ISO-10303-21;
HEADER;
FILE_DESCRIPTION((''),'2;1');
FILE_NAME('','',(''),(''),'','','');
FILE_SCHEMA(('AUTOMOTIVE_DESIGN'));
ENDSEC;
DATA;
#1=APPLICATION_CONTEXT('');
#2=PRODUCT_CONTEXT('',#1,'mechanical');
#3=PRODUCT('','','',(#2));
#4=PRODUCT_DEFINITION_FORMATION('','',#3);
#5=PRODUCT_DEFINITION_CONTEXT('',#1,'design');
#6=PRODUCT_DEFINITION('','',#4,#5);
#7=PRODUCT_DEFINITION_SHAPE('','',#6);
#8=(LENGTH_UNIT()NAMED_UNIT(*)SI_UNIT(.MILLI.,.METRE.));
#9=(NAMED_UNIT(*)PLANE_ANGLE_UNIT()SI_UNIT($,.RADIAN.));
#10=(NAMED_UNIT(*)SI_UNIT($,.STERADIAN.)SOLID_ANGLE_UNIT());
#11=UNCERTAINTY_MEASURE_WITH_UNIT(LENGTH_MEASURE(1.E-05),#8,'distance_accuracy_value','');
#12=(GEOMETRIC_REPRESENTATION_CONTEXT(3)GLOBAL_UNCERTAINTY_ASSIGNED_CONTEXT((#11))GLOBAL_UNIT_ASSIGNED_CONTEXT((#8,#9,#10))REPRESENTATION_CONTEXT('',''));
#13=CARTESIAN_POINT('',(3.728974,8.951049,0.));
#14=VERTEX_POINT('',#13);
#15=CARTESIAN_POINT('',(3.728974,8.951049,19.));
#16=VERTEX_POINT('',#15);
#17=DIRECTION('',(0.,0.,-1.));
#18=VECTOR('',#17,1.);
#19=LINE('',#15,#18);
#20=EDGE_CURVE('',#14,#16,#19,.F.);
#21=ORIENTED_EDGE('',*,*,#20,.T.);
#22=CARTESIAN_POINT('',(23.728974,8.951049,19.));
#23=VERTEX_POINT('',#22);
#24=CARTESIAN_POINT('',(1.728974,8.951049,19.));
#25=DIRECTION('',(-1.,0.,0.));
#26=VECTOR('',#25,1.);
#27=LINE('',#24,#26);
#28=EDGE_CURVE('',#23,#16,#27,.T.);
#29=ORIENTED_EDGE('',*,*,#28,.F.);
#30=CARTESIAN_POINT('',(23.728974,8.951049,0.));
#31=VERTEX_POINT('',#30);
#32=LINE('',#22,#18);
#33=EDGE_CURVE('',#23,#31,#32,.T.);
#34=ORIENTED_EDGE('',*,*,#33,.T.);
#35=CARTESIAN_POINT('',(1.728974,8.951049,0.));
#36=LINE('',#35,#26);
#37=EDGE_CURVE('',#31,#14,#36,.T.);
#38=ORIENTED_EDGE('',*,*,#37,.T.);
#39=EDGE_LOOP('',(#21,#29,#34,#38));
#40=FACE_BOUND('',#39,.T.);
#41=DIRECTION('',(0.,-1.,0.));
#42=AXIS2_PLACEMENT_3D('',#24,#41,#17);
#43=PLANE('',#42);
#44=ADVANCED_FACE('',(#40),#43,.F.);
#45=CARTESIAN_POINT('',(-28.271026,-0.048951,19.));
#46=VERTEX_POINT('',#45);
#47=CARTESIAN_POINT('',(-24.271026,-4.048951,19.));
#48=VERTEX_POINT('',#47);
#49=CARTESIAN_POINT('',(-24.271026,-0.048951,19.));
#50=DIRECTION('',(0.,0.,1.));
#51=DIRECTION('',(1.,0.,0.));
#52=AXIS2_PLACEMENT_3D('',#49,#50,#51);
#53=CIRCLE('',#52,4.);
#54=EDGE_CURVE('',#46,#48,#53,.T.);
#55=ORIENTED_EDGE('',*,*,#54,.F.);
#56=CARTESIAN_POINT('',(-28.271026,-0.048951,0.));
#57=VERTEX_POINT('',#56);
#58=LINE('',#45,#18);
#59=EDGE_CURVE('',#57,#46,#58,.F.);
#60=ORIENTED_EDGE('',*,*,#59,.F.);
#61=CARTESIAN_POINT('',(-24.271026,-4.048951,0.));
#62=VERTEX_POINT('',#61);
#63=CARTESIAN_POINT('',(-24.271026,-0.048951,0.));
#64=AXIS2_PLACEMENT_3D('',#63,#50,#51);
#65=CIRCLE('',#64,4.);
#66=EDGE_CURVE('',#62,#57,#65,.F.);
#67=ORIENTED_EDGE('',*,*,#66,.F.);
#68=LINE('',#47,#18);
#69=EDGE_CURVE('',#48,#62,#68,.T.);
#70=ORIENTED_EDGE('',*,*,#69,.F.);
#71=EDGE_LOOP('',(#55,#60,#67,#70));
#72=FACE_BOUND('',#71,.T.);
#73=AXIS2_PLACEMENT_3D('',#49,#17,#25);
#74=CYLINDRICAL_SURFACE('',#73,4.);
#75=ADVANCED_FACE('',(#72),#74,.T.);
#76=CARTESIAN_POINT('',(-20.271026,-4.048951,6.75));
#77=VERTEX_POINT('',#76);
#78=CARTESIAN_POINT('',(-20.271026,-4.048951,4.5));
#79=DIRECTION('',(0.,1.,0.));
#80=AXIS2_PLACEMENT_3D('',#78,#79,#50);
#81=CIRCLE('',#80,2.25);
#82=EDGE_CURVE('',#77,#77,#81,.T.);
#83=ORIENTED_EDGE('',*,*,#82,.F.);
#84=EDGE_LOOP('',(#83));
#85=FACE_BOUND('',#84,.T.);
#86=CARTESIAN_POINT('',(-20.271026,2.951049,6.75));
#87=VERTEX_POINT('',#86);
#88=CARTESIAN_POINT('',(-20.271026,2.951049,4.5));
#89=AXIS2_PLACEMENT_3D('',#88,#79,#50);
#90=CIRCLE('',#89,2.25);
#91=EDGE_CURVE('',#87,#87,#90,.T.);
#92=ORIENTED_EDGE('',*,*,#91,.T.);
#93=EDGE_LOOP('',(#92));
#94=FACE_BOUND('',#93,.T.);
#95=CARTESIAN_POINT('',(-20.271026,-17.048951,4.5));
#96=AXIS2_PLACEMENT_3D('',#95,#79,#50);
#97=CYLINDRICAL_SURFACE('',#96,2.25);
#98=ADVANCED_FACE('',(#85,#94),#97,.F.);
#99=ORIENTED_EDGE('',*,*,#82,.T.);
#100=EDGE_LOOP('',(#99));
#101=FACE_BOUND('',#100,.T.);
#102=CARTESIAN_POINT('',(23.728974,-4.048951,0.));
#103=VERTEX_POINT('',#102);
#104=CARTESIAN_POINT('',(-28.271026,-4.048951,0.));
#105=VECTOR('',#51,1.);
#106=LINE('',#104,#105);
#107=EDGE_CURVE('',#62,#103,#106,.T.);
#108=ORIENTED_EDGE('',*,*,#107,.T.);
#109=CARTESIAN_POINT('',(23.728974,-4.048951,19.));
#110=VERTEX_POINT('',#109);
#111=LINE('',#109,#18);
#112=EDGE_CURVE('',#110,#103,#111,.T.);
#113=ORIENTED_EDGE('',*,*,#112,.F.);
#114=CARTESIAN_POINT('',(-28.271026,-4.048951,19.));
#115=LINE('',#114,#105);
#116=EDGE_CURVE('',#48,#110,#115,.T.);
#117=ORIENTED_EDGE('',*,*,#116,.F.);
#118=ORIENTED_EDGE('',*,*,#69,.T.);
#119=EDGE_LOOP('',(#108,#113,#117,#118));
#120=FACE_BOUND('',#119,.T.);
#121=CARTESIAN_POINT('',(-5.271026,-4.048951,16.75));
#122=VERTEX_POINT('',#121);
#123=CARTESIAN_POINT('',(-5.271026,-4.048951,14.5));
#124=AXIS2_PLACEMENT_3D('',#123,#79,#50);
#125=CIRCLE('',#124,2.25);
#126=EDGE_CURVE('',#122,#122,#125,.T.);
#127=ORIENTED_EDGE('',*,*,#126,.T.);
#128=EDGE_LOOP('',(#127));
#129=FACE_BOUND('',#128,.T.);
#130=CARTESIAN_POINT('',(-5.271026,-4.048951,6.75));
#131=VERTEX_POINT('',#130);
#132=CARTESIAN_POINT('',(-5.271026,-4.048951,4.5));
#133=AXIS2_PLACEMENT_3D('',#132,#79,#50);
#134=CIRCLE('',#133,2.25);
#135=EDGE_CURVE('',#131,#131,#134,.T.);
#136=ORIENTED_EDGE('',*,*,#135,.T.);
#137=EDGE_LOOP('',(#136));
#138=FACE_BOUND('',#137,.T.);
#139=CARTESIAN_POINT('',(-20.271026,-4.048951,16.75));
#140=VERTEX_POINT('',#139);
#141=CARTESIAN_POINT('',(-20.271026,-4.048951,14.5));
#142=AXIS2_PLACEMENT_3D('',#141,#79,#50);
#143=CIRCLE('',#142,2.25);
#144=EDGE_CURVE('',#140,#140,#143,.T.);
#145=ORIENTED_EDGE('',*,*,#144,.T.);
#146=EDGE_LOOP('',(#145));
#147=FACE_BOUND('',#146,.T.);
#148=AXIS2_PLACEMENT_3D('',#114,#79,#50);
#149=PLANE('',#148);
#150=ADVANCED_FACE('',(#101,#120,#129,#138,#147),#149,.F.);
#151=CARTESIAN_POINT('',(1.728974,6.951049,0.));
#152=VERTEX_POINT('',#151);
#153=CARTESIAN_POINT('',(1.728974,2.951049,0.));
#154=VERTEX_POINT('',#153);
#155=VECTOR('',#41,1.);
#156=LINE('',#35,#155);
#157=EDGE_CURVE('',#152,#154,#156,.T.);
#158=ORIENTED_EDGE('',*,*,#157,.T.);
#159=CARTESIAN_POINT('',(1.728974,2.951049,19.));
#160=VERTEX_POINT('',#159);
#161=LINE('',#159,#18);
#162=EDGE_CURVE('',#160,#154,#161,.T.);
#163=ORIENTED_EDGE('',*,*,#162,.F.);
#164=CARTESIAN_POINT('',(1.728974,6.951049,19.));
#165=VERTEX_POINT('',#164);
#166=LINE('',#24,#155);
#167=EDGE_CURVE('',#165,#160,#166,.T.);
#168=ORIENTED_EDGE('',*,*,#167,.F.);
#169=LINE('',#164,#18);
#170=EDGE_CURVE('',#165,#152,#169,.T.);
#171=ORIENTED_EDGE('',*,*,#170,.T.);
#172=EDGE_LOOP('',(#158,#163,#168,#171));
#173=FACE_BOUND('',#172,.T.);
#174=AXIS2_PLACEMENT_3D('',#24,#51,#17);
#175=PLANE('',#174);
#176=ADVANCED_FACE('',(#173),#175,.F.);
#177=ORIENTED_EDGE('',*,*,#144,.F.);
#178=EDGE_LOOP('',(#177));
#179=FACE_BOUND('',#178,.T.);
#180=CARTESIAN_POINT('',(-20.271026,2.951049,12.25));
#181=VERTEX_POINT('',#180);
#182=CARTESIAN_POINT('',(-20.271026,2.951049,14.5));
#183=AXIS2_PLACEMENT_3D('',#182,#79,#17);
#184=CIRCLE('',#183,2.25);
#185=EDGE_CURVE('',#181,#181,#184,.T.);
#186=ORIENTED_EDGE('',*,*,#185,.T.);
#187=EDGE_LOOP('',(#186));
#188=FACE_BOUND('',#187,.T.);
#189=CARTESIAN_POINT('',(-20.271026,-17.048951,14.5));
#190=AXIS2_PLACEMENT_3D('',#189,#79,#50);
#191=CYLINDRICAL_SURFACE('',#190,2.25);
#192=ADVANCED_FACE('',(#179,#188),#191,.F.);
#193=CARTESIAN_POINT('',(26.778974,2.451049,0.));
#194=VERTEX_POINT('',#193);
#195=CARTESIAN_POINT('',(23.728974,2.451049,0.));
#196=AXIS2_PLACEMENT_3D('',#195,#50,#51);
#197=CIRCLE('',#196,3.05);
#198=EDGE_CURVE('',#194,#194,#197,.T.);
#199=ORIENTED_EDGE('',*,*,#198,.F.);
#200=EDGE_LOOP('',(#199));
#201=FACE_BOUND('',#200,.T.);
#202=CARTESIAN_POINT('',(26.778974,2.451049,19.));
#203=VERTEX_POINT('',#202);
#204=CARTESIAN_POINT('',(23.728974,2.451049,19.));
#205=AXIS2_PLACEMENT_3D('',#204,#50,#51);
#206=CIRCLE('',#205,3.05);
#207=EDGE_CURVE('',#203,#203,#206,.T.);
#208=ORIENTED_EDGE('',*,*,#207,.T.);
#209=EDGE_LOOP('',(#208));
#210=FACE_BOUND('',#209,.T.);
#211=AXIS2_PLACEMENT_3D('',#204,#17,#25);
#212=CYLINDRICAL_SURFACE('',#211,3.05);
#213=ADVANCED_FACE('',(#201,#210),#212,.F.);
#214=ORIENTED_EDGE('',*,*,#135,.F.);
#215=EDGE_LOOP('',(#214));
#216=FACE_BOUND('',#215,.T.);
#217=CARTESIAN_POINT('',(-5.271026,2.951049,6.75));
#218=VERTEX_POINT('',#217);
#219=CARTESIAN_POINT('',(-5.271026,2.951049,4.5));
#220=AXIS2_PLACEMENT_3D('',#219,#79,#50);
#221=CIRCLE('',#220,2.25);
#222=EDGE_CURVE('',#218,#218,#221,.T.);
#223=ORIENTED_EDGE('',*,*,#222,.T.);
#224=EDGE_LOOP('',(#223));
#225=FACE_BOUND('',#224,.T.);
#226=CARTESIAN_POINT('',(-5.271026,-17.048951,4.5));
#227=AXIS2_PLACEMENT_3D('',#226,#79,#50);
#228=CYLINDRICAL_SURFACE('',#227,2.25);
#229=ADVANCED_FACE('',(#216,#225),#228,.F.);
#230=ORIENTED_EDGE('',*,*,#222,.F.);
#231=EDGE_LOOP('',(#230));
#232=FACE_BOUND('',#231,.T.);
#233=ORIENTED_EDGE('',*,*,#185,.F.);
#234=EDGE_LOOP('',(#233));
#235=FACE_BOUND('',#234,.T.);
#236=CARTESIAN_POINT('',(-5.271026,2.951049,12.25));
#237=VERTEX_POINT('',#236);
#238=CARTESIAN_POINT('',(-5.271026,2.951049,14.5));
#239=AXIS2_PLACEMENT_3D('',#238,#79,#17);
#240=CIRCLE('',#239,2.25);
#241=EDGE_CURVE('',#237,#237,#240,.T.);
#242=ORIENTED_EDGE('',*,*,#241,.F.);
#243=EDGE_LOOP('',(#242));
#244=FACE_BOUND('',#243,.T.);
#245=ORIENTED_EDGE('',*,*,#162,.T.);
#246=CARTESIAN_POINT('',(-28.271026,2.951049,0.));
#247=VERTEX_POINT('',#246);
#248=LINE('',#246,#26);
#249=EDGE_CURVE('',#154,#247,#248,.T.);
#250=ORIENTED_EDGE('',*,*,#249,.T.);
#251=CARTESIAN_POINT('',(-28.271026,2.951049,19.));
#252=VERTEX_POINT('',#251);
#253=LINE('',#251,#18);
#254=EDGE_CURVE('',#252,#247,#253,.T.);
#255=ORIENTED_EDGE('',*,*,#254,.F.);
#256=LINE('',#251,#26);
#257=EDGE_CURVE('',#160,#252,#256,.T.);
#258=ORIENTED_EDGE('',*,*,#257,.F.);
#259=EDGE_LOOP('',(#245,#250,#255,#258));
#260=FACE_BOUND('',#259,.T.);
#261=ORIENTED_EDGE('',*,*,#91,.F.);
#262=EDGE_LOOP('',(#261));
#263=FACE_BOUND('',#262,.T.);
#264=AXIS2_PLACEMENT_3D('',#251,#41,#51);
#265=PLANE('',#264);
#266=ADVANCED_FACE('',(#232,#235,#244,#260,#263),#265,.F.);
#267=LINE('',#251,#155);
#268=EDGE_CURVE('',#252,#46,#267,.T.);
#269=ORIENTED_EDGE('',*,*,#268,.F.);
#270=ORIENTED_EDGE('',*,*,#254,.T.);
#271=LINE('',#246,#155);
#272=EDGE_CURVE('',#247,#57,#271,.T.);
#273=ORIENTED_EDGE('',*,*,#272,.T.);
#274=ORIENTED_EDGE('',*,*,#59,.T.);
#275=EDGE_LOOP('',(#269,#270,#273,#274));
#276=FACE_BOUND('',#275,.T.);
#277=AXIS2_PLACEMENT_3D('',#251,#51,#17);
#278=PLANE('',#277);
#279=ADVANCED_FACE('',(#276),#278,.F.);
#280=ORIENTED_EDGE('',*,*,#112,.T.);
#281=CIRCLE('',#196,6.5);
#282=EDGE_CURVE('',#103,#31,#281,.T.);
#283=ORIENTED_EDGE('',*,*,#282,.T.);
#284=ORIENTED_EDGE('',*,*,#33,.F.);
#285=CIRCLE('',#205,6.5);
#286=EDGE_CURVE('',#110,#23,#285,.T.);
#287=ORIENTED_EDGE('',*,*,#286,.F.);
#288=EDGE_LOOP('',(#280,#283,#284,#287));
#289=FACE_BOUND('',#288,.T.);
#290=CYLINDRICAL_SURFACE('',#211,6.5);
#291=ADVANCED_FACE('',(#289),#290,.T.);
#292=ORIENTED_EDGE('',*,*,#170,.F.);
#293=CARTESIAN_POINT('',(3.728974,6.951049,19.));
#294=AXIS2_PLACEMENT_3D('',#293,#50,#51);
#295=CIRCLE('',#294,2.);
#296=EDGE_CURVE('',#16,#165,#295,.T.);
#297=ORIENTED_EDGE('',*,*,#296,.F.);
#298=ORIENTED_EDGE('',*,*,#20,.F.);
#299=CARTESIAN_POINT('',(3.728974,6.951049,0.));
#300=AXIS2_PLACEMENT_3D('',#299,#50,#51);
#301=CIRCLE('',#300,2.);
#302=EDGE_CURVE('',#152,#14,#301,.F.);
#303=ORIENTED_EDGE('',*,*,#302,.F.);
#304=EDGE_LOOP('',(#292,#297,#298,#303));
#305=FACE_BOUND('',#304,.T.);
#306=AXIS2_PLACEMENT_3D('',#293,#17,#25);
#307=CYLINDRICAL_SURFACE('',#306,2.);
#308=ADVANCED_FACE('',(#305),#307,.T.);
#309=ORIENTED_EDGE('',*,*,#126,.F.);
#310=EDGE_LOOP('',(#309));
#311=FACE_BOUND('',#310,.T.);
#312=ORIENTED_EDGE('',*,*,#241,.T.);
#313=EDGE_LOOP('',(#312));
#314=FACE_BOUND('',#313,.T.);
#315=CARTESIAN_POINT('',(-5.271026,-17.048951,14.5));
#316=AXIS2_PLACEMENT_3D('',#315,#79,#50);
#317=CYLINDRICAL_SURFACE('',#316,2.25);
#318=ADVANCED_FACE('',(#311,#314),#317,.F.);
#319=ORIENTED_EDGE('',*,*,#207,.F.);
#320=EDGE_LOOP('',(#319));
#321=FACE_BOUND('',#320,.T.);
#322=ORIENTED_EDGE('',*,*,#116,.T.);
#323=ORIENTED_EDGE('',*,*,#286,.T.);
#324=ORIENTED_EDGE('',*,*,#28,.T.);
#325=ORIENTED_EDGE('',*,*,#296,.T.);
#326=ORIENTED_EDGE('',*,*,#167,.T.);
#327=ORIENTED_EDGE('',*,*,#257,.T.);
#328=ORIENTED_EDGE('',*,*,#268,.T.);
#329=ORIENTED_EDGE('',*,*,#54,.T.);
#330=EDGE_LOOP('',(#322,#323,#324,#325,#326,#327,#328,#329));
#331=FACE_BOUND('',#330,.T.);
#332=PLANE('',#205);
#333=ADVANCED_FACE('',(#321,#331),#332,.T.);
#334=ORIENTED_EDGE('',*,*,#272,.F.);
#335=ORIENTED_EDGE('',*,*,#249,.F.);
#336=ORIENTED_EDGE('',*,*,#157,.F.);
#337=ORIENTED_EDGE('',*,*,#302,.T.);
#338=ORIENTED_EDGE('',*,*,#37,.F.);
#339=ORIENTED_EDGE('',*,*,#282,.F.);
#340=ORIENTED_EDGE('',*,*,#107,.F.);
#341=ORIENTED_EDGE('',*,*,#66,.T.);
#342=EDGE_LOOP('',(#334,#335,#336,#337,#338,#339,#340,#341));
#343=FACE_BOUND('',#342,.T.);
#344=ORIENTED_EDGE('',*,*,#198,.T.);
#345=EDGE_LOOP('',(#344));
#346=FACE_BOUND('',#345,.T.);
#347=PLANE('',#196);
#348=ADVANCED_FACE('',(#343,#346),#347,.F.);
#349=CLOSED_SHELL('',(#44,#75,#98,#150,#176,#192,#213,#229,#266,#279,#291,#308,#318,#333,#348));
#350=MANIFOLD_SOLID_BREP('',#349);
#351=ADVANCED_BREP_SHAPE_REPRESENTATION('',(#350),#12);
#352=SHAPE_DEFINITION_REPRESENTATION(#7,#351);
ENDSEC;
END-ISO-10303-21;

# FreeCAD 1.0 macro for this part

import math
import FreeCAD as App
import Part
import Sketcher
Q = App.Units.Quantity


def edges_at(feature, points):
    """Names of the edges that pass closest to the given points."""
    edges = feature.Shape.Edges
    near = lambda p: min(range(len(edges)), key=lambda i: edges[i].distToShape(Part.Vertex(*p))[0])
    return sorted({f"Edge{near(p) + 1}" for p in points})

doc = App.newDocument("Part")
body = doc.addObject("PartDesign::Body", "Body")

# Sketch on XY plane
sketch1 = doc.addObject("Sketcher::SketchObject", "Sketch")
body.addObject(sketch1)
sketch1.AttachmentSupport = (doc.XY_Plane, [""])
sketch1.MapMode = "FlatFace"
sketch1.addGeometry([
    Part.LineSegment(App.Vector(23.7, 9, 0), App.Vector(1.7, 9, 0)),  # 0
    Part.LineSegment(App.Vector(1.7, 9, 0), App.Vector(1.7, 3, 0)),  # 1
    Part.LineSegment(App.Vector(1.7, 3, 0), App.Vector(-28.3, 3, 0)),  # 2
    Part.LineSegment(App.Vector(-28.3, 3, 0), App.Vector(-28.3, -4, 0)),  # 3
    Part.LineSegment(App.Vector(-28.3, -4, 0), App.Vector(23.7, -4, 0)),  # 4
    Part.ArcOfCircle(Part.Circle(App.Vector(23.7, 2.5, 0), App.Vector(0, 0, 1), 6.5), math.radians(-90), math.radians(90)),  # 5
    Part.Circle(App.Vector(23.7, 2.5, 0), App.Vector(0, 0, 1), 3),  # 6
], False)
sketch1.addConstraint([
    Sketcher.Constraint("Coincident", 0, 2, 1, 1),
    Sketcher.Constraint("Coincident", 1, 2, 2, 1),
    Sketcher.Constraint("Coincident", 2, 2, 3, 1),
    Sketcher.Constraint("Coincident", 3, 2, 4, 1),
    Sketcher.Constraint("Tangent", 4, 2, 5, 1),
    Sketcher.Constraint("Tangent", 5, 2, 0, 1),
    Sketcher.Constraint("Horizontal", 0),
    Sketcher.Constraint("Vertical", 1),
    Sketcher.Constraint("Horizontal", 2),
    Sketcher.Constraint("Vertical", 3),
    Sketcher.Constraint("Horizontal", 4),
    Sketcher.Constraint("Coincident", 6, 3, 5, 3),
    Sketcher.Constraint("Diameter", 6, Q("6.1 mm")),
    Sketcher.Constraint("Radius", 5, Q("6.5 mm")),
    Sketcher.Constraint("DistanceX", 0, 2, 0, 1, Q("22 mm")),
    Sketcher.Constraint("DistanceX", 2, 2, 2, 1, Q("30 mm")),
    Sketcher.Constraint("DistanceY", 1, 2, 1, 1, Q("6 mm")),
    Sketcher.Constraint("DistanceY", -1, 1, 5, 3, Q("2.451049 mm")),
    Sketcher.Constraint("DistanceX", -1, 1, 5, 3, Q("23.728974 mm")),
])
pad1 = doc.addObject("PartDesign::Pad", "Pad")
body.addObject(pad1)
pad1.Profile = sketch1
pad1.Length = 19

# Sketch on XZ plane
sketch2 = doc.addObject("Sketcher::SketchObject", "Sketch001")
body.addObject(sketch2)
sketch2.AttachmentSupport = (doc.XZ_Plane, [""])
sketch2.MapMode = "FlatFace"
sketch2.AttachmentOffset = App.Placement(App.Vector(0, 0, -2.951049), App.Rotation())
sketch2.addGeometry([
    Part.Circle(App.Vector(-20.3, 4.5, 0), App.Vector(0, 0, 1), 2.2),
    Part.Circle(App.Vector(-5.3, 4.5, 0), App.Vector(0, 0, 1), 2.2),
    Part.Circle(App.Vector(-5.3, 14.5, 0), App.Vector(0, 0, 1), 2.2),
    Part.Circle(App.Vector(-20.3, 14.5, 0), App.Vector(0, 0, 1), 2.2),
], False)
sketch2.addConstraint([
    Sketcher.Constraint("Equal", 0, 1),
    Sketcher.Constraint("Equal", 1, 2),
    Sketcher.Constraint("Equal", 2, 3),
    Sketcher.Constraint("Horizontal", 0, 3, 1, 3),
    Sketcher.Constraint("Horizontal", 2, 3, 3, 3),
    Sketcher.Constraint("Vertical", 1, 3, 2, 3),
    Sketcher.Constraint("Vertical", 0, 3, 3, 3),
    Sketcher.Constraint("Diameter", 0, Q("4.5 mm")),
    Sketcher.Constraint("DistanceX", 0, 3, 1, 3, Q("15 mm")),
    Sketcher.Constraint("DistanceY", 1, 3, 2, 3, Q("10 mm")),
    Sketcher.Constraint("DistanceY", -1, 1, 0, 3, Q("4.5 mm")),
    Sketcher.Constraint("DistanceX", 0, 3, -1, 1, Q("20.271026 mm")),
])
pocket1 = doc.addObject("PartDesign::Pocket", "Pocket")
body.addObject(pocket1)
pocket1.Profile = sketch2
pocket1.Length = 20
pocket1.Reversed = True
doc.recompute()

fillet = doc.addObject("PartDesign::Fillet", "Fillet")
body.addObject(fillet)
fillet.Base = (pocket1, edges_at(pocket1, [(-28.271, -4.049, 9.5)]))
fillet.Radius = 4
doc.recompute()

fillet2 = doc.addObject("PartDesign::Fillet", "Fillet001")
body.addObject(fillet2)
fillet2.Base = (fillet, edges_at(fillet, [(1.729, 8.951, 9.5)]))
fillet2.Radius = 2

doc.recompute()
